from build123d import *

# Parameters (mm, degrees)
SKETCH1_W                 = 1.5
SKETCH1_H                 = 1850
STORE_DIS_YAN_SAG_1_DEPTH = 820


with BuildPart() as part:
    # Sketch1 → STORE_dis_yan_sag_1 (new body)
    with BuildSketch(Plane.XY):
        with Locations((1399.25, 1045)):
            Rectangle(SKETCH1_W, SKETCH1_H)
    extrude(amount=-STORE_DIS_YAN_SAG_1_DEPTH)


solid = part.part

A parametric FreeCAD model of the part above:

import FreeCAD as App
import Part
import Sketcher


def add_polygon(sketch, points):
    """Adds a closed chain of lines whose ends are joined by coincident constraints."""
    first, n = sketch.GeometryCount, len(points)
    for a, b in zip(points, points[1:] + points[:1]):
        sketch.addGeometry(Part.LineSegment(App.Vector(*a, 0), App.Vector(*b, 0)), False)
    for i in range(n):
        sketch.addConstraint(Sketcher.Constraint("Coincident", first + i, 2, first + (i + 1) % n, 1))

doc = App.newDocument("Part")
params = doc.addObject("Spreadsheet::Sheet", "Params")
for row, (alias, value) in enumerate([
    ("sketch1_height", "1850 mm"),
    ("sketch1_width", "1.5 mm"),
    ("pad1_length", "820 mm"),
], start=1):
    params.set(f"A{row}", alias)
    params.set(f"B{row}", "=" + value)
    params.setAlias(f"B{row}", alias)

body = doc.addObject("PartDesign::Body", "Body")

# Sketch on XY plane
sketch1 = body.newObject("Sketcher::SketchObject", "Sketch")
sketch1.AttachmentSupport = (doc.getObject("XY_Plane"), [""])
sketch1.MapMode = "FlatFace"
add_polygon(sketch1, [(1398.5, 1970), (1398.5, 120), (1400, 120), (1400, 1970)])  # lines 0-3
sketch1.addConstraint([
    Sketcher.Constraint("Vertical", 0),
    Sketcher.Constraint("Horizontal", 1),
    Sketcher.Constraint("Vertical", 2),
    Sketcher.Constraint("Horizontal", 3),
    Sketcher.Constraint("DistanceY", 0, 2, 0, 1, 1850.0),
    Sketcher.Constraint("DistanceX", 1, 1, 1, 2, 1.5),
    Sketcher.Constraint("DistanceY", -1, 1, 0, 2, 120.0),
    Sketcher.Constraint("DistanceX", -1, 1, 1, 2, 1400.0),
])
sketch1.setExpression("Constraints[8]", "Params.sketch1_height")
sketch1.setExpression("Constraints[9]", "Params.sketch1_width")
pad1 = body.newObject("PartDesign::Pad", "Pad")
pad1.Profile = sketch1
pad1.setExpression("Length", "Params.pad1_length")
pad1.Reversed = True

doc.recompute()
